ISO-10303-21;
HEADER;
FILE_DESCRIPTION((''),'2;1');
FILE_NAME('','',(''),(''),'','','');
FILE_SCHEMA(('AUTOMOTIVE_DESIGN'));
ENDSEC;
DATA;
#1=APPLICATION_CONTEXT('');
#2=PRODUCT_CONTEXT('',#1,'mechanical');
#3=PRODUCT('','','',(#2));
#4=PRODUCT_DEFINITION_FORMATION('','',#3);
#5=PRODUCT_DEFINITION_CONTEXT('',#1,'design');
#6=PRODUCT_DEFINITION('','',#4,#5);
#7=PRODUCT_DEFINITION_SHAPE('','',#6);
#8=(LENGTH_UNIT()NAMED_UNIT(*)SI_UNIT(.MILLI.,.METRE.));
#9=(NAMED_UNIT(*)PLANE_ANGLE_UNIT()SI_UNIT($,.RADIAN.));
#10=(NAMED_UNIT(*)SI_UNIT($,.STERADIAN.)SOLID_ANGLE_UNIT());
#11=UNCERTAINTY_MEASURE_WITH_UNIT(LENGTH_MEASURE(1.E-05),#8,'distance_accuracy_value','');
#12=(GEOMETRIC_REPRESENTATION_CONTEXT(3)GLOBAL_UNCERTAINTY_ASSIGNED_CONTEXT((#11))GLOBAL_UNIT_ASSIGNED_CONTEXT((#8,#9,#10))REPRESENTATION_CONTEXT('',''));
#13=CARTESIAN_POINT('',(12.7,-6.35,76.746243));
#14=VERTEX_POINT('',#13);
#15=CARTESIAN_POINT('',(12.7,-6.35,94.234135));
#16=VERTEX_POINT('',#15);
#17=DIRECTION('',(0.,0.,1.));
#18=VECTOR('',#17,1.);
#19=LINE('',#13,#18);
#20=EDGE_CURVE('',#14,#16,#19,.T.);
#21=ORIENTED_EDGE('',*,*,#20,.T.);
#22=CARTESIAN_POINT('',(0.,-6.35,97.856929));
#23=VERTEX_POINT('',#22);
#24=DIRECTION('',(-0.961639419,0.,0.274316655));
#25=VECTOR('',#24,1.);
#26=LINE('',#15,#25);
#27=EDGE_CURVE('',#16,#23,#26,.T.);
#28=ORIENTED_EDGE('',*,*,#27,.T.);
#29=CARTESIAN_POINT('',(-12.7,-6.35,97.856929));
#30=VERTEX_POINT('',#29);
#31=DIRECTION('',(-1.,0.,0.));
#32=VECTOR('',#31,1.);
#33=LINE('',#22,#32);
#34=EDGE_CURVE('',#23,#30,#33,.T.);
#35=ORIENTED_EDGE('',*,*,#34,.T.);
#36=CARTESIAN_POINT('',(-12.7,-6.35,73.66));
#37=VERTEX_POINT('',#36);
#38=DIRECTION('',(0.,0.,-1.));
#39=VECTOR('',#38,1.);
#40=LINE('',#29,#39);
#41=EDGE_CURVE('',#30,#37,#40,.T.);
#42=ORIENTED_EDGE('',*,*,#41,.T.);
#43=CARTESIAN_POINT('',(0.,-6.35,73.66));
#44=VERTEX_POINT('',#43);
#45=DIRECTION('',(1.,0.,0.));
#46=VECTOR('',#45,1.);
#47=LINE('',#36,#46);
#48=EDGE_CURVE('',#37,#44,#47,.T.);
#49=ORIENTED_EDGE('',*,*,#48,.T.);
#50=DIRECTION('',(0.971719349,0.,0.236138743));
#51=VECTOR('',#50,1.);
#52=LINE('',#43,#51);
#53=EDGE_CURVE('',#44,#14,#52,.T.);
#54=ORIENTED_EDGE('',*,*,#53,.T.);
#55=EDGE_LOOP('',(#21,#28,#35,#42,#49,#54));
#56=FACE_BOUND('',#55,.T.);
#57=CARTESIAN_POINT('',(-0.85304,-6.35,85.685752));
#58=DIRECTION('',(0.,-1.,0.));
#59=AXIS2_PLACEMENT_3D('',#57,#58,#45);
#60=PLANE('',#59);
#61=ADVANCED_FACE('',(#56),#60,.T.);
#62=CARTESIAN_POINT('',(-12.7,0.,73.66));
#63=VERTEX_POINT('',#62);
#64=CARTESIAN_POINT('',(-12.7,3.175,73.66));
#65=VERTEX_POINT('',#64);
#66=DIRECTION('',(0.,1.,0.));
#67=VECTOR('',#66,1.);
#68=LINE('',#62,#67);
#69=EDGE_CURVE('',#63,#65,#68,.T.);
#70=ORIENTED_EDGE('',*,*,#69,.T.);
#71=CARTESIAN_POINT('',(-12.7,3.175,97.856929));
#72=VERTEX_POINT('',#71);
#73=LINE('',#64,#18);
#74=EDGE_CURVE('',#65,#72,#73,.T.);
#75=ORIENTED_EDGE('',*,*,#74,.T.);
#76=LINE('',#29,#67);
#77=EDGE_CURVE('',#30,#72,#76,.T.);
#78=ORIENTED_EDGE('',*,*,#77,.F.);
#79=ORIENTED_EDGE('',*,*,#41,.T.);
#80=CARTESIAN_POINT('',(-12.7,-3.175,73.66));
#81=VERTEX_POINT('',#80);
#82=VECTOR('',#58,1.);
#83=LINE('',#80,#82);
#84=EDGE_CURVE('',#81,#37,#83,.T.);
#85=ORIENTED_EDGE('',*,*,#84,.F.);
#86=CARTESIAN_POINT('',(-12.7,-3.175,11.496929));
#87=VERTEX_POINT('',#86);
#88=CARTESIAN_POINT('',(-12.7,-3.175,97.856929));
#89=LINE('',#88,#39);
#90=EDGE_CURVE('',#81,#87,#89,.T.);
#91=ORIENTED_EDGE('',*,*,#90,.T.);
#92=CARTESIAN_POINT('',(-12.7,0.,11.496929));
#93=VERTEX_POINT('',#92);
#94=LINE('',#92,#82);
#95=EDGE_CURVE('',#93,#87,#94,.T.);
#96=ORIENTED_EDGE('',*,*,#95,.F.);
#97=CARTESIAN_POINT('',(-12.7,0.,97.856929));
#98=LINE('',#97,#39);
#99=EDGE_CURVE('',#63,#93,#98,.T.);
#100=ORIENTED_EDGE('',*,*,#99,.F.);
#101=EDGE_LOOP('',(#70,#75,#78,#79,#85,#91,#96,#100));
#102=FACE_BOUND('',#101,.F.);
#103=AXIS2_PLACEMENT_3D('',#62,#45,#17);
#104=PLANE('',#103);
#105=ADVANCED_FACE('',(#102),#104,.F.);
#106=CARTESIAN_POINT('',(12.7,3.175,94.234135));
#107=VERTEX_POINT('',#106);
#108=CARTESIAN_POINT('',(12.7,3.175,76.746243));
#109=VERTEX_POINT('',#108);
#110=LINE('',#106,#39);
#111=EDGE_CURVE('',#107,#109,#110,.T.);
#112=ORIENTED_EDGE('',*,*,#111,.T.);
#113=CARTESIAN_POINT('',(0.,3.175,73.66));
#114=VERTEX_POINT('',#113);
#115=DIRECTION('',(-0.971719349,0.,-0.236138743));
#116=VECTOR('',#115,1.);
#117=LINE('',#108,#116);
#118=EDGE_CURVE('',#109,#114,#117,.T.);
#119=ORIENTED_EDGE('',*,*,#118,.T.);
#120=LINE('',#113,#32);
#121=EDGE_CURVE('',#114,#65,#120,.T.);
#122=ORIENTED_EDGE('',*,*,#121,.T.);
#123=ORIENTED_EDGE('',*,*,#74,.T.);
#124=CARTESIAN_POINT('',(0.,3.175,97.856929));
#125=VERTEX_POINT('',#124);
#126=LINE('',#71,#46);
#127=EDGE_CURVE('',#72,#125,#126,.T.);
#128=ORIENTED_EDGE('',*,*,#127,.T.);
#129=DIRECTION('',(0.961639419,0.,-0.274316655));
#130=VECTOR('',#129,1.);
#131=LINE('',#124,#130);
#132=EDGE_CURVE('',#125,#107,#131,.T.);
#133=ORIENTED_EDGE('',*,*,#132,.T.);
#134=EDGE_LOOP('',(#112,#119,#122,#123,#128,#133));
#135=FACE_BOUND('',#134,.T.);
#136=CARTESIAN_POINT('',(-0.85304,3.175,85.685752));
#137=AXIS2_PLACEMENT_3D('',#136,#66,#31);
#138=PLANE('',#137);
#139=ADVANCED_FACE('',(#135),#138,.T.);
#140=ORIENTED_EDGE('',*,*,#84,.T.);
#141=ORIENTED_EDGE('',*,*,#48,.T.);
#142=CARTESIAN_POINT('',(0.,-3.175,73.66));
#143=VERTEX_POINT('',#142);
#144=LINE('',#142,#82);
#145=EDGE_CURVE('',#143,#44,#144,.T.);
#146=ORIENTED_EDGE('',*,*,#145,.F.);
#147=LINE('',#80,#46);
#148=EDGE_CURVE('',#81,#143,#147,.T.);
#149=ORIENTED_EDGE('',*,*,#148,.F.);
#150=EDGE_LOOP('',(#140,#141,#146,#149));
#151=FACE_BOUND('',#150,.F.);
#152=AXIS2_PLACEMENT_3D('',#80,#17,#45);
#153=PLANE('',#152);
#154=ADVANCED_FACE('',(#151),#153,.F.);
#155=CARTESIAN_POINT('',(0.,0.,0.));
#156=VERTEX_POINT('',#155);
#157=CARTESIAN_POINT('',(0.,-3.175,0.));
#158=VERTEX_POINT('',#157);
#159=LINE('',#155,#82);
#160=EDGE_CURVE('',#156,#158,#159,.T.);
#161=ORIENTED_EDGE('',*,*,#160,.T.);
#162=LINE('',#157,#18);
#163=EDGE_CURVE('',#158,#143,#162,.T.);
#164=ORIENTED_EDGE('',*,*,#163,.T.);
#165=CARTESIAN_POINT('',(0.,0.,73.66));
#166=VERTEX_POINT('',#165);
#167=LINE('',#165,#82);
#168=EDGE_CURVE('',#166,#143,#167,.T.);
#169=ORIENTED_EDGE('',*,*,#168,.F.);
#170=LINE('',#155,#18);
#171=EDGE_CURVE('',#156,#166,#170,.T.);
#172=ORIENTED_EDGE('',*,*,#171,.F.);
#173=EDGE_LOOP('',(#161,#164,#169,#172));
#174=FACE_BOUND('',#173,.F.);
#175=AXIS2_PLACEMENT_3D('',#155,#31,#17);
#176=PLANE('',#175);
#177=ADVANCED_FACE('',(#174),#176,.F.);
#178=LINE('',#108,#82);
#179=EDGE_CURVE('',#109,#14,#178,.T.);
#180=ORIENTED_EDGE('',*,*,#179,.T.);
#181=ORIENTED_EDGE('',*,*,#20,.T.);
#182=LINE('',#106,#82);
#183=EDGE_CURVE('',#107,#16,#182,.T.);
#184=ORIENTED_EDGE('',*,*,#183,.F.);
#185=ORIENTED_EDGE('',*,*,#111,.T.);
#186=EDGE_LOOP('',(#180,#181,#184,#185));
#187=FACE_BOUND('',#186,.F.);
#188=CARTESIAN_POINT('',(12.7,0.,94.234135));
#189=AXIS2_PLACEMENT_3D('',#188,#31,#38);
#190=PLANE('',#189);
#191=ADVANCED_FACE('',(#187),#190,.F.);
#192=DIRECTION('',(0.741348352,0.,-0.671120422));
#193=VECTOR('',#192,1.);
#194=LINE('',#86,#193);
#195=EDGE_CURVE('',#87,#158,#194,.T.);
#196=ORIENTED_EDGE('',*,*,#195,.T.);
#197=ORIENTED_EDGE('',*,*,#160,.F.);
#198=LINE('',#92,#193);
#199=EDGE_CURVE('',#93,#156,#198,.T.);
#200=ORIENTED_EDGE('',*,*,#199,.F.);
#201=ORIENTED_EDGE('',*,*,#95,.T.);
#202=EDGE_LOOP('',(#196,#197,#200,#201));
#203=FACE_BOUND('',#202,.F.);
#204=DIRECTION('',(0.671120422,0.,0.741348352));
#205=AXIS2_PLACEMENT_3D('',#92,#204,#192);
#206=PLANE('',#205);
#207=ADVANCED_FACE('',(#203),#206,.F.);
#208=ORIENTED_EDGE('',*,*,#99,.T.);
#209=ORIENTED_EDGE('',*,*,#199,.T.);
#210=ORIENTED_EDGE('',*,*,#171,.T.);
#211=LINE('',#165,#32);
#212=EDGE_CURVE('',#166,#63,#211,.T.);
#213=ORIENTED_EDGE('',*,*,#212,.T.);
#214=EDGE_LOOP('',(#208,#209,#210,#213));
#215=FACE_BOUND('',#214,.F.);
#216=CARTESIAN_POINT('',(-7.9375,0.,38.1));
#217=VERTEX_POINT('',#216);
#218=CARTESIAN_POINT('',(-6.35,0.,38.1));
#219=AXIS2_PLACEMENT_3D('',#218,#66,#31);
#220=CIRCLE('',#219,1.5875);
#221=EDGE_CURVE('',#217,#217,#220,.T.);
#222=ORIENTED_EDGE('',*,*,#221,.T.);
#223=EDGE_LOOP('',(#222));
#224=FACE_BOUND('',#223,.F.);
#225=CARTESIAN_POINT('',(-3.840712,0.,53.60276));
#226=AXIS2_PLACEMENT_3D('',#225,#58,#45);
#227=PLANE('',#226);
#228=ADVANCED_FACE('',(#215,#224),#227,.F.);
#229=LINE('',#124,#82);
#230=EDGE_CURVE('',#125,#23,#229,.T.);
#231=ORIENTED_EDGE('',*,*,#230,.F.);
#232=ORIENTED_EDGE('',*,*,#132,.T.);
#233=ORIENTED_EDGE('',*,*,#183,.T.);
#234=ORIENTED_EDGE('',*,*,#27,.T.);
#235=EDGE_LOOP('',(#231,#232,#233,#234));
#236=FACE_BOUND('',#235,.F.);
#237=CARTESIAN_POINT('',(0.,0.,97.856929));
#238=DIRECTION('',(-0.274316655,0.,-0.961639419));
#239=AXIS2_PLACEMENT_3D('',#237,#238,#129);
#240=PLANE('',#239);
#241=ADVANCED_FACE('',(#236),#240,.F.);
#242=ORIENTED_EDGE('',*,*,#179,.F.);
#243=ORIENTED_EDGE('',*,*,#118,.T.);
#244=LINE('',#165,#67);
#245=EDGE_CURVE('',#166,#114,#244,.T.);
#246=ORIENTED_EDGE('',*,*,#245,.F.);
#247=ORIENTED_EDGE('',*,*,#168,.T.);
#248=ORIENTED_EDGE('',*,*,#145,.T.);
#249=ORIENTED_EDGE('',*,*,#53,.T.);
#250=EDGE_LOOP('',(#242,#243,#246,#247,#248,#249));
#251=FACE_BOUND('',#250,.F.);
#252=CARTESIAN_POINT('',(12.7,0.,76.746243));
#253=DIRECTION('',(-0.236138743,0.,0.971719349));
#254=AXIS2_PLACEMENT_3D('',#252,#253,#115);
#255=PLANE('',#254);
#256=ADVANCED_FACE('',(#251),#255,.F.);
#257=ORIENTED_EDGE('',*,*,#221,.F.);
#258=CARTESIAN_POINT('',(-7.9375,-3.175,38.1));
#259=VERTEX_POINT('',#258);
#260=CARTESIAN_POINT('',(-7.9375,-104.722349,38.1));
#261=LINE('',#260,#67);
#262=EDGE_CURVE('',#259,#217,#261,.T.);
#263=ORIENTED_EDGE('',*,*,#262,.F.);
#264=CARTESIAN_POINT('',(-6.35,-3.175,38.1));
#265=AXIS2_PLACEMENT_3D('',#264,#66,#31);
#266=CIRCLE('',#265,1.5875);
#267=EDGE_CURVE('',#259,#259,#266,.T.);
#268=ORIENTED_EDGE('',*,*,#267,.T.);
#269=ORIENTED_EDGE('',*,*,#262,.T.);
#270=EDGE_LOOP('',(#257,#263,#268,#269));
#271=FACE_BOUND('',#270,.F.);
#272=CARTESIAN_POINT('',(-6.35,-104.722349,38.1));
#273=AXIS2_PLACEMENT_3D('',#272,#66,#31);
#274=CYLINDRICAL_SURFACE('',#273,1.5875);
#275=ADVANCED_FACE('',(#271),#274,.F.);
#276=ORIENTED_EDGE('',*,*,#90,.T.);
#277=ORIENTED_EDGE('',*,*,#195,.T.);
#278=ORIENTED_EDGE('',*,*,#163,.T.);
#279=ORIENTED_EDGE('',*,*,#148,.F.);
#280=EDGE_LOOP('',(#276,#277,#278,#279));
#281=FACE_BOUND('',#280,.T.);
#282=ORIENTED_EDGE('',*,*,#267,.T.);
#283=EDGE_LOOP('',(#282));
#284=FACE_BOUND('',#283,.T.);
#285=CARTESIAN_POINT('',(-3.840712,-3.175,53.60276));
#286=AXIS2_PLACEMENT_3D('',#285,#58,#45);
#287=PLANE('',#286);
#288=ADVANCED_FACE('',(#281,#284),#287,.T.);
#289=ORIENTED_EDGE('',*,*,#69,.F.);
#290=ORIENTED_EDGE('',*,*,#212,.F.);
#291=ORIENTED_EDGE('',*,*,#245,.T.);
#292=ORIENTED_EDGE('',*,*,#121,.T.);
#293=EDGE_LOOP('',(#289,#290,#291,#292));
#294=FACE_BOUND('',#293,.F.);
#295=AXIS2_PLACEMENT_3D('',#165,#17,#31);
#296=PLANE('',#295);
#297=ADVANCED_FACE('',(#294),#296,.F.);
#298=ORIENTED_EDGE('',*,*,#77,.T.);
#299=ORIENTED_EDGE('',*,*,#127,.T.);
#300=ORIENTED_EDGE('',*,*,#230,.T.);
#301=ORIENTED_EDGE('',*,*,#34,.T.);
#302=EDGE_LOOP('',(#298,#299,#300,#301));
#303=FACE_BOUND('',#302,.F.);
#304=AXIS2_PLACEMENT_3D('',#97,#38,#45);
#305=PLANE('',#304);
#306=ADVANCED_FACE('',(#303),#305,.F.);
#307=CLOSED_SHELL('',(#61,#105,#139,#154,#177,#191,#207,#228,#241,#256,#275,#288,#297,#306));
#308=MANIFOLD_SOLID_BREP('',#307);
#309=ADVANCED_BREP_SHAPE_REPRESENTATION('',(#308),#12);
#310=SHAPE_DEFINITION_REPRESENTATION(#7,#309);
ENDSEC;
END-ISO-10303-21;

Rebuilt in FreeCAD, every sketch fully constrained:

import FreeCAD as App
import Part
import Sketcher

V = App.Vector
Q = App.Units.Quantity

doc = App.newDocument("Part")
body = doc.addObject("PartDesign::Body", "Body")

sketch1 = body.newObject("Sketcher::SketchObject", "Sketch")
sketch1.AttachmentSupport = (doc.getObject("XZ_Plane"), [""])
sketch1.MapMode = "FlatFace"
sketch1.addGeometry([
    Part.LineSegment(V(-13, 11, 0), V(0, 0, 0)),
    Part.LineSegment(V(0, 0, 0), V(0, 74, 0)),
    Part.LineSegment(V(0, 74, 0), V(13, 77, 0)),
    Part.LineSegment(V(13, 77, 0), V(13, 94, 0)),
    Part.LineSegment(V(13, 94, 0), V(0, 98, 0)),
    Part.LineSegment(V(0, 98, 0), V(-13, 98, 0)),
    Part.LineSegment(V(-13, 98, 0), V(-13, 11, 0)),
], False)
sketch1.addConstraint([
    Sketcher.Constraint("Coincident", 0, 2, 1, 1),
    Sketcher.Constraint("Coincident", 1, 2, 2, 1),
    Sketcher.Constraint("Coincident", 2, 2, 3, 1),
    Sketcher.Constraint("Coincident", 3, 2, 4, 1),
    Sketcher.Constraint("Coincident", 4, 2, 5, 1),
    Sketcher.Constraint("Coincident", 5, 2, 6, 1),
    Sketcher.Constraint("Coincident", 6, 2, 0, 1),
    Sketcher.Constraint("Vertical", 1),
    Sketcher.Constraint("Vertical", 3),
    Sketcher.Constraint("Horizontal", 5),
    Sketcher.Constraint("Vertical", 6),
    Sketcher.Constraint("Coincident", 0, 2, -1, 1),
    Sketcher.Constraint("PointOnObject", 4, 2, -2),
    Sketcher.Constraint("DistanceX", 5, 2, 5, 1, Q("0.5 in")),
    Sketcher.Constraint("DistanceY", 1, 1, 1, 2, Q("2.9 in")),
    Sketcher.Constraint("DistanceY", 6, 2, 6, 1, Q("3.4 in")),
    Sketcher.Constraint("DistanceX", 5, 2, 3, 2, Q("1 in")),
    Sketcher.Constraint("DistanceY", 3, 1, 3, 2, Q("17.487892 mm")),
    Sketcher.Constraint("DistanceY", -1, 1, 4, 2, Q("97.856929 mm")),
    Sketcher.Constraint("Distance", 2, Q("13.069617 mm")),
])
pad1 = body.newObject("PartDesign::Pad", "Pad")
pad1.Profile = sketch1
pad1.Length = Q("0.125 in")

sketch2 = body.newObject("Sketcher::SketchObject", "Sketch001")
sketch2.AttachmentSupport = (doc.getObject("XZ_Plane"), [""])
sketch2.MapMode = "FlatFace"
sketch2.AttachmentOffset = App.Placement(V(0, 0, 0.125 * 25.4), App.Rotation())
sketch2.addGeometry([
    Part.LineSegment(V(0, 98, 0), V(-13, 98, 0)),
    Part.LineSegment(V(-13, 98, 0), V(-13, 74, 0)),
    Part.LineSegment(V(-13, 74, 0), V(0, 74, 0)),
    Part.LineSegment(V(0, 74, 0), V(13, 77, 0)),
    Part.LineSegment(V(13, 77, 0), V(13, 94, 0)),
    Part.LineSegment(V(13, 94, 0), V(0, 98, 0)),
], False)
sketch2.addConstraint([
    Sketcher.Constraint("Coincident", 0, 2, 1, 1),
    Sketcher.Constraint("Coincident", 1, 2, 2, 1),
    Sketcher.Constraint("Coincident", 2, 2, 3, 1),
    Sketcher.Constraint("Coincident", 3, 2, 4, 1),
    Sketcher.Constraint("Coincident", 4, 2, 5, 1),
    Sketcher.Constraint("Coincident", 5, 2, 0, 1),
    Sketcher.Constraint("Horizontal", 0),
    Sketcher.Constraint("Vertical", 1),
    Sketcher.Constraint("Horizontal", 2),
    Sketcher.Constraint("Vertical", 4),
    Sketcher.Constraint("PointOnObject", 2, 2, -2),
    Sketcher.Constraint("PointOnObject", 5, 2, -2),
    Sketcher.Constraint("DistanceX", 0, 2, 0, 1, Q("0.5 in")),
    Sketcher.Constraint("DistanceX", 1, 2, 3, 2, Q("1 in")),
    Sketcher.Constraint("DistanceY", -1, 1, 1, 2, Q("2.9 in")),
    Sketcher.Constraint("DistanceY", 1, 2, 1, 1, Q("24.196929 mm")),
    Sketcher.Constraint("DistanceY", 4, 1, 4, 2, Q("17.487892 mm")),
    Sketcher.Constraint("Distance", 3, Q("13.069617 mm")),
])
pad2 = body.newObject("PartDesign::Pad", "Pad001")
pad2.Profile = sketch2
pad2.Length = Q("0.125 in")

sketch3 = body.newObject("Sketcher::SketchObject", "Sketch002")
sketch3.AttachmentSupport = (doc.getObject("XZ_Plane"), [""])
sketch3.MapMode = "FlatFace"
sketch3.addGeometry([
    Part.LineSegment(V(13, 77, 0), V(0, 74, 0)),
    Part.LineSegment(V(0, 74, 0), V(-13, 74, 0)),
    Part.LineSegment(V(-13, 74, 0), V(-13, 98, 0)),
    Part.LineSegment(V(-13, 98, 0), V(0, 98, 0)),
    Part.LineSegment(V(0, 98, 0), V(13, 94, 0)),
    Part.LineSegment(V(13, 94, 0), V(13, 77, 0)),
], False)
sketch3.addConstraint([
    Sketcher.Constraint("Coincident", 0, 2, 1, 1),
    Sketcher.Constraint("Coincident", 1, 2, 2, 1),
    Sketcher.Constraint("Coincident", 2, 2, 3, 1),
    Sketcher.Constraint("Coincident", 3, 2, 4, 1),
    Sketcher.Constraint("Coincident", 4, 2, 5, 1),
    Sketcher.Constraint("Coincident", 5, 2, 0, 1),
    Sketcher.Constraint("Horizontal", 1),
    Sketcher.Constraint("Vertical", 2),
    Sketcher.Constraint("Horizontal", 3),
    Sketcher.Constraint("Vertical", 5),
    Sketcher.Constraint("PointOnObject", 0, 2, -2),
    Sketcher.Constraint("PointOnObject", 3, 2, -2),
    Sketcher.Constraint("DistanceX", 1, 2, 1, 1, Q("0.5 in")),
    Sketcher.Constraint("DistanceX", 2, 2, 4, 2, Q("1 in")),
    Sketcher.Constraint("DistanceY", -1, 1, 0, 2, Q("2.9 in")),
    Sketcher.Constraint("DistanceY", 2, 1, 2, 2, Q("24.196929 mm")),
    Sketcher.Constraint("DistanceY", 5, 2, 5, 1, Q("17.487892 mm")),
    Sketcher.Constraint("Distance", 0, Q("13.069617 mm")),
])
pad3 = body.newObject("PartDesign::Pad", "Pad002")
pad3.Profile = sketch3
pad3.Length = Q("0.125 in")
pad3.Reversed = True

sketch4 = body.newObject("Sketcher::SketchObject", "Sketch003")
sketch4.AttachmentSupport = (doc.getObject("XZ_Plane"), [""])
sketch4.MapMode = "FlatFace"
sketch4.AttachmentOffset = App.Placement(V(0, 0, 0.125 * 25.4), App.Rotation())
sketch4.addGeometry(Part.Circle(V(-6.3, 38.1, 0), V(0, 0, 1), 1.6), False)
sketch4.addConstraint([
    Sketcher.Constraint("Diameter", 0, Q("0.125 in")),
    Sketcher.Constraint("DistanceY", -1, 1, 0, 3, Q("1.5 in")),
    Sketcher.Constraint("DistanceX", 0, 3, -1, 1, Q("0.25 in")),
])
doc.recompute()
hole = body.newObject("PartDesign::Hole", "Hole")
hole.Profile = sketch4
hole.ThreadType = "None"
hole.Diameter = Q("0.125 in")
hole.DepthType = "ThroughAll"

doc.recompute()
